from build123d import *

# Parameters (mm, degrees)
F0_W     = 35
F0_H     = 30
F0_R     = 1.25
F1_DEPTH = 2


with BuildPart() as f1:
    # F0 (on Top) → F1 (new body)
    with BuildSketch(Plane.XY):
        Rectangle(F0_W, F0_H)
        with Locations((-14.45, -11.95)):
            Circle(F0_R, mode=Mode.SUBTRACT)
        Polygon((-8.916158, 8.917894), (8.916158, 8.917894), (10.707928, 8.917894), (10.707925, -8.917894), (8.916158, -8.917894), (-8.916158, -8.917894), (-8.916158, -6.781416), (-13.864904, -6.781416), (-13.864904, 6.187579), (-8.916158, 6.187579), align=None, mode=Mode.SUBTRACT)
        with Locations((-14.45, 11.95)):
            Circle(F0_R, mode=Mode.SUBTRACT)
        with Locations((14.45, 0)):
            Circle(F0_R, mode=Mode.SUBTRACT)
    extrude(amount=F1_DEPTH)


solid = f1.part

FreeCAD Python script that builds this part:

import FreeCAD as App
import Part
import Sketcher
from FreeCAD import Vector
Q = App.Units.Quantity

doc = App.newDocument("Part")
params = doc.addObject("Spreadsheet::Sheet", "Params")
for row, (alias, value) in enumerate([
    ("sketch1_diameter", "2.5 mm"),
    ("sketch1_width", "35 mm"),
    ("sketch1_height", "30 mm"),
    ("pad1_length", "2 mm"),
], start=1):
    params.set(f"A{row}", alias)
    params.set(f"B{row}", "=" + value)
    params.setAlias(f"B{row}", alias)

body = doc.addObject("PartDesign::Body", "Body")

# Sketch on XY plane
sketch1 = body.newObject("Sketcher::SketchObject", "Sketch")
sketch1.AttachmentSupport = (doc.getObject("XY_Plane"), [""])
sketch1.MapMode = "FlatFace"
sketch1.addGeometry(Part.LineSegment(Vector(-17.5, 15, 0), Vector(-17.5, -15, 0)), False)
sketch1.addGeometry(Part.LineSegment(Vector(-17.5, -15, 0), Vector(17.5, -15, 0)), False)
sketch1.addGeometry(Part.LineSegment(Vector(17.5, -15, 0), Vector(17.5, 15, 0)), False)
sketch1.addGeometry(Part.LineSegment(Vector(17.5, 15, 0), Vector(-17.5, 15, 0)), False)
sketch1.addGeometry(Part.Circle(Vector(-14.4, -11.9, 0), Vector(0, 0, 1), 1.2), False)
sketch1.addGeometry(Part.LineSegment(Vector(-8.9, 6.2, 0), Vector(-8.9, 8.9, 0)), False)
sketch1.addGeometry(Part.LineSegment(Vector(-8.9, 8.9, 0), Vector(10.7, 8.9, 0)), False)
sketch1.addGeometry(Part.LineSegment(Vector(10.7, 8.9, 0), Vector(10.7, -8.9, 0)), False)
sketch1.addGeometry(Part.LineSegment(Vector(10.7, -8.9, 0), Vector(-8.9, -8.9, 0)), False)
sketch1.addGeometry(Part.LineSegment(Vector(-8.9, -8.9, 0), Vector(-8.9, -6.8, 0)), False)
sketch1.addGeometry(Part.LineSegment(Vector(-8.9, -6.8, 0), Vector(-13.9, -6.8, 0)), False)
sketch1.addGeometry(Part.LineSegment(Vector(-13.9, -6.8, 0), Vector(-13.9, 6.2, 0)), False)
sketch1.addGeometry(Part.LineSegment(Vector(-13.9, 6.2, 0), Vector(-8.9, 6.2, 0)), False)
sketch1.addGeometry(Part.Circle(Vector(-14.4, 11.9, 0), Vector(0, 0, 1), 1.2), False)
sketch1.addGeometry(Part.Circle(Vector(14.4, 0, 0), Vector(0, 0, 1), 1.2), False)
sketch1.addConstraint(Sketcher.Constraint("Coincident", 0, 2, 1, 1))
sketch1.addConstraint(Sketcher.Constraint("Coincident", 1, 2, 2, 1))
sketch1.addConstraint(Sketcher.Constraint("Coincident", 2, 2, 3, 1))
sketch1.addConstraint(Sketcher.Constraint("Coincident", 3, 2, 0, 1))
sketch1.addConstraint(Sketcher.Constraint("Coincident", 5, 2, 6, 1))
sketch1.addConstraint(Sketcher.Constraint("Coincident", 6, 2, 7, 1))
sketch1.addConstraint(Sketcher.Constraint("Coincident", 7, 2, 8, 1))
sketch1.addConstraint(Sketcher.Constraint("Coincident", 8, 2, 9, 1))
sketch1.addConstraint(Sketcher.Constraint("Coincident", 9, 2, 10, 1))
sketch1.addConstraint(Sketcher.Constraint("Coincident", 10, 2, 11, 1))
sketch1.addConstraint(Sketcher.Constraint("Coincident", 11, 2, 12, 1))
sketch1.addConstraint(Sketcher.Constraint("Coincident", 12, 2, 5, 1))
sketch1.addConstraint(Sketcher.Constraint("Vertical", 0))
sketch1.addConstraint(Sketcher.Constraint("Horizontal", 1))
sketch1.addConstraint(Sketcher.Constraint("Vertical", 2))
sketch1.addConstraint(Sketcher.Constraint("Horizontal", 3))
sketch1.addConstraint(Sketcher.Constraint("Vertical", 5))
sketch1.addConstraint(Sketcher.Constraint("Horizontal", 6))
sketch1.addConstraint(Sketcher.Constraint("Horizontal", 8))
sketch1.addConstraint(Sketcher.Constraint("Vertical", 9))
sketch1.addConstraint(Sketcher.Constraint("Horizontal", 10))
sketch1.addConstraint(Sketcher.Constraint("Vertical", 11))
sketch1.addConstraint(Sketcher.Constraint("Horizontal", 12))
sketch1.addConstraint(Sketcher.Constraint("Equal", 4, 13))
sketch1.addConstraint(Sketcher.Constraint("Equal", 13, 14))
sketch1.addConstraint(Sketcher.Constraint("Symmetric", 0, 2, 2, 2, -1, 1))
sketch1.addConstraint(Sketcher.Constraint("Symmetric", 4, 3, 13, 3, -1))
sketch1.addConstraint(Sketcher.Constraint("Symmetric", 6, 2, 7, 2, -1))
sketch1.addConstraint(Sketcher.Constraint("PointOnObject", 14, 3, -1))
sketch1.addConstraint(Sketcher.Constraint("Vertical", 5, 2, 8, 2))
sketch1.addConstraint(Sketcher.Constraint("Diameter", 4, Q("2.5 mm")))
sketch1.addConstraint(Sketcher.Constraint("DistanceX", 1, 1, 1, 2, Q("35 mm")))
sketch1.addConstraint(Sketcher.Constraint("DistanceY", 0, 2, 0, 1, Q("30 mm")))
sketch1.addConstraint(Sketcher.Constraint("DistanceY", 4, 3, 13, 3, Q("23.9 mm")))
sketch1.addConstraint(Sketcher.Constraint("DistanceX", 4, 3, 14, 3, Q("28.9 mm")))
sketch1.addConstraint(Sketcher.Constraint("DistanceX", 4, 3, -1, 1, Q("14.45 mm")))
sketch1.addConstraint(Sketcher.Constraint("DistanceY", 9, 1, 9, 2, Q("2.136478 mm")))
sketch1.addConstraint(Sketcher.Constraint("Distance", 7, Q("17.835788 mm")))
sketch1.addConstraint(Sketcher.Constraint("DistanceX", 6, 1, 6, 2, Q("19.624086 mm")))
sketch1.addConstraint(Sketcher.Constraint("DistanceX", 10, 2, 10, 1, Q("4.948746 mm")))
sketch1.addConstraint(Sketcher.Constraint("DistanceY", 5, 1, 5, 2, Q("2.730315 mm")))
sketch1.addConstraint(Sketcher.Constraint("DistanceX", -1, 1, 6, 2, Q("10.707928 mm")))
sketch1.setExpression("Constraints[30]", "Params.sketch1_diameter")
sketch1.setExpression("Constraints[31]", "Params.sketch1_width")
sketch1.setExpression("Constraints[32]", "Params.sketch1_height")
pad1 = body.newObject("PartDesign::Pad", "Pad")
pad1.Profile = sketch1
pad1.setExpression("Length", "Params.pad1_length")

doc.recompute()
